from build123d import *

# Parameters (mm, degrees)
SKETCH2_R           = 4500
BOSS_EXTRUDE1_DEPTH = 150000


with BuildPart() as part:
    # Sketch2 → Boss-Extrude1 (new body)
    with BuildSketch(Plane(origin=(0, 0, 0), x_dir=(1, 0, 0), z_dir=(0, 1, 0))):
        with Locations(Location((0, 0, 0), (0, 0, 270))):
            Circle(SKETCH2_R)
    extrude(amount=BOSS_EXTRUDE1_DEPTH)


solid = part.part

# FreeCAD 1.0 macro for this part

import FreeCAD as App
import Part
import Sketcher

V = App.Vector
Q = App.Units.Quantity

doc = App.newDocument("Part")
params = doc.addObject("Spreadsheet::Sheet", "Params")
for row, (alias, value) in enumerate([
    ("sketch1_diameter", "9000 mm"),
    ("pad1_length", "150000 mm"),
], start=1):
    params.set(f"A{row}", alias)
    params.set(f"B{row}", "=" + value)
    params.setAlias(f"B{row}", alias)

body = doc.addObject("PartDesign::Body", "Body")

sketch1 = body.newObject("Sketcher::SketchObject", "Sketch")
sketch1.AttachmentSupport = (doc.getObject("XZ_Plane"), [""])
sketch1.MapMode = "FlatFace"
sketch1.addGeometry(Part.Circle(V(0, 0, 0), V(0, 0, 1), 4500), False)
sketch1.addConstraint([
    Sketcher.Constraint("Coincident", 0, 3, -1, 1),
    Sketcher.Constraint("Diameter", 0, Q("9000 mm")),
])
sketch1.setExpression("Constraints[1]", "Params.sketch1_diameter")
pad1 = body.newObject("PartDesign::Pad", "Pad")
pad1.Profile = sketch1
pad1.setExpression("Length", "Params.pad1_length")
pad1.Reversed = True

doc.recompute()
